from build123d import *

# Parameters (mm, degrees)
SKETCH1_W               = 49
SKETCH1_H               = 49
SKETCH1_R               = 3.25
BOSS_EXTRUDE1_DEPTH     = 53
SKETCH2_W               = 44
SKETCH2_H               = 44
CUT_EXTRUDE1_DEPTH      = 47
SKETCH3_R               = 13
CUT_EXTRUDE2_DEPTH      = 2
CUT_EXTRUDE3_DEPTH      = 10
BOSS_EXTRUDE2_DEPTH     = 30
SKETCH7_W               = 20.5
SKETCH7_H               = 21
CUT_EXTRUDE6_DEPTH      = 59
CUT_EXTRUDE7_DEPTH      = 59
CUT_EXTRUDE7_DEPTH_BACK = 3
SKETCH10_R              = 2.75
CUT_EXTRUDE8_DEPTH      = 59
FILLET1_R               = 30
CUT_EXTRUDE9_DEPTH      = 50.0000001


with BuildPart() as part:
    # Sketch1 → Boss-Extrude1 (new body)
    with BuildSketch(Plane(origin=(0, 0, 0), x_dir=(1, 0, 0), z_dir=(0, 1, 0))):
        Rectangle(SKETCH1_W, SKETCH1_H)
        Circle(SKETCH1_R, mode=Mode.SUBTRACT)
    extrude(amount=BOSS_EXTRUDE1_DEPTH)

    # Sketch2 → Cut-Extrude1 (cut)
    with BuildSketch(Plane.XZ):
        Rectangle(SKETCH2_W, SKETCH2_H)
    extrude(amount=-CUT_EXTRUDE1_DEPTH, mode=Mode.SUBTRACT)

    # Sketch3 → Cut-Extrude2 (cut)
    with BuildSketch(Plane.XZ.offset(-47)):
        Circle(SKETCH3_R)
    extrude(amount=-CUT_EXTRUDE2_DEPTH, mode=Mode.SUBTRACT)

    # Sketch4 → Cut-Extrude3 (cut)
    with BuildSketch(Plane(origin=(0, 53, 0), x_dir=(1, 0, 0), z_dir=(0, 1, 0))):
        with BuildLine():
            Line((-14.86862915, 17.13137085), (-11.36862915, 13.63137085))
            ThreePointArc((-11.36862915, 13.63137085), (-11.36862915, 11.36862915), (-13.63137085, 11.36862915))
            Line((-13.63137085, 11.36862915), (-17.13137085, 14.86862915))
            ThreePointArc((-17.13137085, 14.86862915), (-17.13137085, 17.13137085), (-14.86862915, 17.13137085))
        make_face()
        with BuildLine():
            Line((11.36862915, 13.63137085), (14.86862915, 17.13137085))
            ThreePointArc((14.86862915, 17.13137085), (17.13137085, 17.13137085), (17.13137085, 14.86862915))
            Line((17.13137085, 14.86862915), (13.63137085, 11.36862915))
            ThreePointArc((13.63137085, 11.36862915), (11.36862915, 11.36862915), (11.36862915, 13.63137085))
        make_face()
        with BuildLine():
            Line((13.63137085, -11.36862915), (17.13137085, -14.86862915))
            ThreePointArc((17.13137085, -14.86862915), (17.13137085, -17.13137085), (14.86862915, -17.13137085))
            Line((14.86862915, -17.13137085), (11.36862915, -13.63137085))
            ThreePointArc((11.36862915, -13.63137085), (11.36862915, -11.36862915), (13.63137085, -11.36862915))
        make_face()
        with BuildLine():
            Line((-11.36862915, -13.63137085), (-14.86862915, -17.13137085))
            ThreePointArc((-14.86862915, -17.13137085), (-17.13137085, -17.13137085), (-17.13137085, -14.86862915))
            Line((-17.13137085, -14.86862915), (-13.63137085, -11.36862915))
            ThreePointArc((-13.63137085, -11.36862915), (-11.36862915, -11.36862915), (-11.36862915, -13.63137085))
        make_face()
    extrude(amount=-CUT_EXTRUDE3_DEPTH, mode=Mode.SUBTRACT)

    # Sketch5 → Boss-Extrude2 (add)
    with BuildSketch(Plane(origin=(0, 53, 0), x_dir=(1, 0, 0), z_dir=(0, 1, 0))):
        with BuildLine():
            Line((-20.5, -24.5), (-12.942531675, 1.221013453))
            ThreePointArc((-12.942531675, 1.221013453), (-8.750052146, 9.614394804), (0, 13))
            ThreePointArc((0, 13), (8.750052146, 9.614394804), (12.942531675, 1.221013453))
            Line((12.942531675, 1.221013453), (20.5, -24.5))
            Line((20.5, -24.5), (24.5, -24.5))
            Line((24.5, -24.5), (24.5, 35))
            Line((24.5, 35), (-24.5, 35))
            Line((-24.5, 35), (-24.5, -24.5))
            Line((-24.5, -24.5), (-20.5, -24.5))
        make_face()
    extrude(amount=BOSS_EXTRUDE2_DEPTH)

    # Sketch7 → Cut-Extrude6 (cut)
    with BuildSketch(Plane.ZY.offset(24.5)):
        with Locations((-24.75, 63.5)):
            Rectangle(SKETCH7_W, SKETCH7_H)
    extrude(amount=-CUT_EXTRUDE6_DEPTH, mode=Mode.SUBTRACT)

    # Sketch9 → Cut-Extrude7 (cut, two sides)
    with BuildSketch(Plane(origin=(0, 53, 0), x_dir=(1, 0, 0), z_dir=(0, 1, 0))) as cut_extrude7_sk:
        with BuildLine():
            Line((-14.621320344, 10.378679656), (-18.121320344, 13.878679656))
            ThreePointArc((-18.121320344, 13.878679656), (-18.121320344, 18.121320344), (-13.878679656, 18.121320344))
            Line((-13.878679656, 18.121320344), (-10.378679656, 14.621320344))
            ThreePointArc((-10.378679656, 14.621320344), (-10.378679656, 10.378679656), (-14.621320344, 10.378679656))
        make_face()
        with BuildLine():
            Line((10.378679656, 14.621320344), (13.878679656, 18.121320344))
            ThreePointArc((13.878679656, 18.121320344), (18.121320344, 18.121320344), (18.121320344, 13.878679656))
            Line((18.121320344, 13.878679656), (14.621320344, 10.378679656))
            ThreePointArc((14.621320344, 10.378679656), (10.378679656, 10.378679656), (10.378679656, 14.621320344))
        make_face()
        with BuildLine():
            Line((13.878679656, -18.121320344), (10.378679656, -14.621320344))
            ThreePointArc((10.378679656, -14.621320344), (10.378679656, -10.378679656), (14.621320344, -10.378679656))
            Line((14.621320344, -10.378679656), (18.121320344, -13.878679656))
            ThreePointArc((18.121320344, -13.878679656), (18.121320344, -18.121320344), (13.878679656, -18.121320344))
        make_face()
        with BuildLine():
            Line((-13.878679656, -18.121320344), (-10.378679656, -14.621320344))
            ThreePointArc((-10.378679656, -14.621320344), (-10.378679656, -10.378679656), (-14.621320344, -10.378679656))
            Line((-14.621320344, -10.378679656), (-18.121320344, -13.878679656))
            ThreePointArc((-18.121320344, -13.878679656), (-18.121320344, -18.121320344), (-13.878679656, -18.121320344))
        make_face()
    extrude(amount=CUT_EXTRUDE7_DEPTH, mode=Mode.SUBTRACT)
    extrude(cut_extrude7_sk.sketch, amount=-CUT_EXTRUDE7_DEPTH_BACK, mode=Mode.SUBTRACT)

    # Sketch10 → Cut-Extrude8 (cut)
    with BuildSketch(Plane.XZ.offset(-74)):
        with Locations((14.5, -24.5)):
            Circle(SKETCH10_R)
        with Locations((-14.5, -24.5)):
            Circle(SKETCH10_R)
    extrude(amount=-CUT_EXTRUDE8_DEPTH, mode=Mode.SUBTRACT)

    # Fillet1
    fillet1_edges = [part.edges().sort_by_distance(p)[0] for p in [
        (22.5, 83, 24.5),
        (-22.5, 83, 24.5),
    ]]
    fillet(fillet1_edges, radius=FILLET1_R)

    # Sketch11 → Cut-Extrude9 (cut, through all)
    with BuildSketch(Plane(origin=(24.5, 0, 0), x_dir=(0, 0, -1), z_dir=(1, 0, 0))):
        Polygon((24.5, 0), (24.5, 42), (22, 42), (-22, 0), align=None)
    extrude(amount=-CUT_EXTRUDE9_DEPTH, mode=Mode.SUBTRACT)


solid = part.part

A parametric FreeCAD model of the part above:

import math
import FreeCAD as App
import Part
import Sketcher
Q = App.Units.Quantity


def edges_at(feature, points):
    """Names of the edges that pass closest to the given points."""
    edges = feature.Shape.Edges
    near = lambda p: min(range(len(edges)), key=lambda i: edges[i].distToShape(Part.Vertex(*p))[0])
    return sorted({f"Edge{near(p) + 1}" for p in points})


def add_polygon(sketch, points):
    """Adds a closed chain of lines whose ends are joined by coincident constraints."""
    first, n = sketch.GeometryCount, len(points)
    for a, b in zip(points, points[1:] + points[:1]):
        sketch.addGeometry(Part.LineSegment(App.Vector(*a, 0), App.Vector(*b, 0)), False)
    for i in range(n):
        sketch.addConstraint(Sketcher.Constraint("Coincident", first + i, 2, first + (i + 1) % n, 1))

doc = App.newDocument("Part")
body = doc.addObject("PartDesign::Body", "Body")

# Sketch on XZ plane
sketch1 = body.newObject("Sketcher::SketchObject", "Sketch")
sketch1.AttachmentSupport = (doc.getObject("XZ_Plane"), [""])
sketch1.MapMode = "FlatFace"
add_polygon(sketch1, [(-24.5, -24.5), (-24.5, 24.5), (24.5, 24.5), (24.5, -24.5)])  # lines 0-3
sketch1.addGeometry(Part.Circle(App.Vector(0, 0, 0), App.Vector(0, 0, 1), 3.25), False)  # 4
sketch1.addConstraint([
    Sketcher.Constraint("Vertical", 0),
    Sketcher.Constraint("Horizontal", 1),
    Sketcher.Constraint("Vertical", 2),
    Sketcher.Constraint("Horizontal", 3),
    Sketcher.Constraint("Coincident", 4, 3, -1, 1),
    Sketcher.Constraint("Symmetric", 0, 2, 2, 2, -1, 1),
    Sketcher.Constraint("Equal", 3, 0),
    Sketcher.Constraint("Diameter", 4, Q("6.5 mm")),
    Sketcher.Constraint("DistanceX", 1, 1, 1, 2, Q("49 mm")),
])
pad1 = body.newObject("PartDesign::Pad", "Pad")
pad1.Profile = sketch1
pad1.Length = 53
pad1.Reversed = True

# Sketch on XZ plane
sketch2 = body.newObject("Sketcher::SketchObject", "Sketch001")
sketch2.AttachmentSupport = (doc.getObject("XZ_Plane"), [""])
sketch2.MapMode = "FlatFace"
add_polygon(sketch2, [(-22, 22), (-22, -22), (22, -22), (22, 22)])  # lines 0-3
sketch2.addConstraint([
    Sketcher.Constraint("Vertical", 0),
    Sketcher.Constraint("Horizontal", 1),
    Sketcher.Constraint("Vertical", 2),
    Sketcher.Constraint("Horizontal", 3),
    Sketcher.Constraint("Symmetric", 0, 2, 2, 2, -1, 1),
    Sketcher.Constraint("Equal", 3, 0),
    Sketcher.Constraint("DistanceX", 1, 1, 1, 2, Q("44 mm")),
])
pocket1 = body.newObject("PartDesign::Pocket", "Pocket")
pocket1.Profile = sketch2
pocket1.Length = 47

# Sketch on XZ plane
sketch3 = body.newObject("Sketcher::SketchObject", "Sketch002")
sketch3.AttachmentSupport = (doc.getObject("XZ_Plane"), [""])
sketch3.MapMode = "FlatFace"
sketch3.AttachmentOffset = App.Placement(App.Vector(0, 0, -47), App.Rotation())
sketch3.addGeometry(Part.Circle(App.Vector(0, 0, 0), App.Vector(0, 0, 1), 13), False)
sketch3.addConstraint([
    Sketcher.Constraint("Coincident", 0, 3, -1, 1),
    Sketcher.Constraint("Diameter", 0, Q("26 mm")),
])
pocket2 = body.newObject("PartDesign::Pocket", "Pocket001")
pocket2.Profile = sketch3
pocket2.Length = 2

# Sketch on XZ plane
sketch4 = body.newObject("Sketcher::SketchObject", "Sketch003")
sketch4.AttachmentSupport = (doc.getObject("XZ_Plane"), [""])
sketch4.MapMode = "FlatFace"
sketch4.AttachmentOffset = App.Placement(App.Vector(0, 0, -53), App.Rotation())
sketch4.addGeometry([
    Part.LineSegment(App.Vector(-11.368629, -13.631371, 0), App.Vector(-14.868629, -17.131371, 0)),  # 0
    Part.ArcOfCircle(Part.Circle(App.Vector(-16, -16, 0), App.Vector(0, 0, 1), 1.6), math.radians(135), math.radians(315)),  # 1
    Part.LineSegment(App.Vector(-17.131371, -14.868629, 0), App.Vector(-13.631371, -11.368629, 0)),  # 2
    Part.ArcOfCircle(Part.Circle(App.Vector(-12.5, -12.5, 0), App.Vector(0, 0, 1), 1.6), math.radians(-45), math.radians(135)),  # 3
    Part.LineSegment(App.Vector(14.868629, -17.131371, 0), App.Vector(11.368629, -13.631371, 0)),  # 4
    Part.ArcOfCircle(Part.Circle(App.Vector(12.5, -12.5, 0), App.Vector(0, 0, 1), 1.6), math.radians(45), math.radians(225)),  # 5
    Part.LineSegment(App.Vector(13.631371, -11.368629, 0), App.Vector(17.131371, -14.868629, 0)),  # 6
    Part.ArcOfCircle(Part.Circle(App.Vector(16, -16, 0), App.Vector(0, 0, 1), 1.6), math.radians(-135), math.radians(45)),  # 7
    Part.LineSegment(App.Vector(17.131371, 14.868629, 0), App.Vector(13.631371, 11.368629, 0)),  # 8
    Part.ArcOfCircle(Part.Circle(App.Vector(12.5, 12.5, 0), App.Vector(0, 0, 1), 1.6), math.radians(135), math.radians(315)),  # 9
    Part.LineSegment(App.Vector(11.368629, 13.631371, 0), App.Vector(14.868629, 17.131371, 0)),  # 10
    Part.ArcOfCircle(Part.Circle(App.Vector(16, 16, 0), App.Vector(0, 0, 1), 1.6), math.radians(-45), math.radians(135)),  # 11
    Part.LineSegment(App.Vector(-14.868629, 17.131371, 0), App.Vector(-11.368629, 13.631371, 0)),  # 12
    Part.ArcOfCircle(Part.Circle(App.Vector(-12.5, 12.5, 0), App.Vector(0, 0, 1), 1.6), math.radians(-135), math.radians(45)),  # 13
    Part.LineSegment(App.Vector(-13.631371, 11.368629, 0), App.Vector(-17.131371, 14.868629, 0)),  # 14
    Part.ArcOfCircle(Part.Circle(App.Vector(-16, 16, 0), App.Vector(0, 0, 1), 1.6), math.radians(45), math.radians(225)),  # 15
], False)
sketch4.addConstraint([
    Sketcher.Constraint("Tangent", 0, 2, 1, 2),
    Sketcher.Constraint("Tangent", 1, 1, 2, 1),
    Sketcher.Constraint("Tangent", 2, 2, 3, 2),
    Sketcher.Constraint("Tangent", 3, 1, 0, 1),
    Sketcher.Constraint("Tangent", 4, 2, 5, 2),
    Sketcher.Constraint("Tangent", 5, 1, 6, 1),
    Sketcher.Constraint("Tangent", 6, 2, 7, 2),
    Sketcher.Constraint("Tangent", 7, 1, 4, 1),
    Sketcher.Constraint("Tangent", 8, 2, 9, 2),
    Sketcher.Constraint("Tangent", 9, 1, 10, 1),
    Sketcher.Constraint("Tangent", 10, 2, 11, 2),
    Sketcher.Constraint("Tangent", 11, 1, 8, 1),
    Sketcher.Constraint("Tangent", 12, 2, 13, 2),
    Sketcher.Constraint("Tangent", 13, 1, 14, 1),
    Sketcher.Constraint("Tangent", 14, 2, 15, 2),
    Sketcher.Constraint("Tangent", 15, 1, 12, 1),
    Sketcher.Constraint("Equal", 1, 3),
    Sketcher.Constraint("Equal", 3, 5),
    Sketcher.Constraint("Equal", 5, 7),
    Sketcher.Constraint("Equal", 7, 9),
    Sketcher.Constraint("Equal", 9, 11),
    Sketcher.Constraint("Equal", 11, 13),
    Sketcher.Constraint("Equal", 13, 15),
    Sketcher.Constraint("Symmetric", 3, 3, 9, 3, -1, 1),
    Sketcher.Constraint("Symmetric", 1, 3, 11, 3, -1, 1),
    Sketcher.Constraint("Symmetric", 5, 3, 13, 3, -1, 1),
    Sketcher.Constraint("Symmetric", 7, 3, 15, 3, -1, 1),
    Sketcher.Constraint("Symmetric", 3, 3, 5, 3, -2),
    Sketcher.Constraint("Symmetric", 1, 3, 7, 3, -2),
    Sketcher.Constraint("Perpendicular", 2, 4),
    Sketcher.Constraint("Radius", 1, Q("1.6 mm")),
    Sketcher.Constraint("DistanceX", 1, 3, -1, 1, Q("16 mm")),
    Sketcher.Constraint("DistanceY", 1, 3, -1, 1, Q("16 mm")),
    Sketcher.Constraint("DistanceX", 3, 3, 5, 3, Q("25 mm")),
])
pocket3 = body.newObject("PartDesign::Pocket", "Pocket002")
pocket3.Profile = sketch4
pocket3.Length = 10
pocket3.Reversed = True

# Sketch on XZ plane
sketch5 = body.newObject("Sketcher::SketchObject", "Sketch004")
sketch5.AttachmentSupport = (doc.getObject("XZ_Plane"), [""])
sketch5.MapMode = "FlatFace"
sketch5.AttachmentOffset = App.Placement(App.Vector(0, 0, -53), App.Rotation())
sketch5.addGeometry([
    Part.LineSegment(App.Vector(-20.5, 24.5, 0), App.Vector(-12.942532, -1.221013, 0)),  # 0
    Part.ArcOfCircle(Part.Circle(App.Vector(0, 0, 0), App.Vector(0, 0, 1), 13), math.radians(-174.610601), math.radians(-90)),  # 1
    Part.ArcOfCircle(Part.Circle(App.Vector(0, 0, 0), App.Vector(0, 0, 1), 13), math.radians(-90), math.radians(-5.389399)),  # 2
    Part.LineSegment(App.Vector(12.942532, -1.221013, 0), App.Vector(20.5, 24.5, 0)),  # 3
    Part.LineSegment(App.Vector(20.5, 24.5, 0), App.Vector(24.5, 24.5, 0)),  # 4
    Part.LineSegment(App.Vector(24.5, 24.5, 0), App.Vector(24.5, -35, 0)),  # 5
    Part.LineSegment(App.Vector(24.5, -35, 0), App.Vector(-24.5, -35, 0)),  # 6
    Part.LineSegment(App.Vector(-24.5, -35, 0), App.Vector(-24.5, 24.5, 0)),  # 7
    Part.LineSegment(App.Vector(-24.5, 24.5, 0), App.Vector(-20.5, 24.5, 0)),  # 8
], False)
sketch5.addConstraint([
    Sketcher.Constraint("Coincident", 0, 2, 1, 1),
    Sketcher.Constraint("Tangent", 1, 2, 2, 1),
    Sketcher.Constraint("Coincident", 2, 2, 3, 1),
    Sketcher.Constraint("Coincident", 3, 2, 4, 1),
    Sketcher.Constraint("Coincident", 4, 2, 5, 1),
    Sketcher.Constraint("Coincident", 5, 2, 6, 1),
    Sketcher.Constraint("Coincident", 6, 2, 7, 1),
    Sketcher.Constraint("Coincident", 7, 2, 8, 1),
    Sketcher.Constraint("Coincident", 8, 2, 0, 1),
    Sketcher.Constraint("Horizontal", 4),
    Sketcher.Constraint("Vertical", 5),
    Sketcher.Constraint("Horizontal", 6),
    Sketcher.Constraint("Vertical", 7),
    Sketcher.Constraint("Horizontal", 8),
    Sketcher.Constraint("Coincident", 1, 3, -1, 1),
    Sketcher.Constraint("Equal", 1, 2),
    Sketcher.Constraint("Symmetric", 4, 2, 7, 2, -2),
    Sketcher.Constraint("PointOnObject", 1, 2, -2),
    Sketcher.Constraint("Horizontal", 0, 2, 2, 2),
    Sketcher.Constraint("Equal", 4, 8),
    Sketcher.Constraint("Radius", 1, Q("13 mm")),
    Sketcher.Constraint("DistanceX", 4, 1, 4, 2, Q("4 mm")),
    Sketcher.Constraint("DistanceX", 6, 2, 6, 1, Q("49 mm")),
    Sketcher.Constraint("DistanceY", 5, 2, 5, 1, Q("59.5 mm")),
    Sketcher.Constraint("DistanceY", 5, 2, -1, 1, Q("35 mm")),
    Sketcher.Constraint("DistanceX", 0, 2, -1, 1, Q("12.942532 mm")),
])
pad2 = body.newObject("PartDesign::Pad", "Pad001")
pad2.Profile = sketch5
pad2.Length = 30
pad2.Reversed = True

# Sketch on YZ plane
sketch6 = body.newObject("Sketcher::SketchObject", "Sketch005")
sketch6.AttachmentSupport = (doc.getObject("YZ_Plane"), [""])
sketch6.MapMode = "FlatFace"
sketch6.AttachmentOffset = App.Placement(App.Vector(0, 0, -24.5), App.Rotation())
add_polygon(sketch6, [(74, -35), (53, -35), (53, -14.5), (74, -14.5)])  # lines 0-3
sketch6.addConstraint([
    Sketcher.Constraint("Horizontal", 0),
    Sketcher.Constraint("Vertical", 1),
    Sketcher.Constraint("Horizontal", 2),
    Sketcher.Constraint("Vertical", 3),
    Sketcher.Constraint("DistanceX", 0, 2, 0, 1, Q("21 mm")),
    Sketcher.Constraint("DistanceY", 1, 1, 1, 2, Q("20.5 mm")),
    Sketcher.Constraint("DistanceX", -1, 1, 0, 2, Q("53 mm")),
    Sketcher.Constraint("DistanceY", 0, 2, -1, 1, Q("35 mm")),
])
pocket4 = body.newObject("PartDesign::Pocket", "Pocket003")
pocket4.Profile = sketch6
pocket4.Length = 59
pocket4.Reversed = True

# Sketch on XZ plane
sketch7 = body.newObject("Sketcher::SketchObject", "Sketch006")
sketch7.AttachmentSupport = (doc.getObject("XZ_Plane"), [""])
sketch7.MapMode = "FlatFace"
sketch7.AttachmentOffset = App.Placement(App.Vector(0, 0, -53), App.Rotation())
sketch7.addGeometry([
    Part.LineSegment(App.Vector(-18.12132, -13.87868, 0), App.Vector(-14.62132, -10.37868, 0)),  # 0
    Part.ArcOfCircle(Part.Circle(App.Vector(-12.5, -12.5, 0), App.Vector(0, 0, 1), 3), math.radians(-45), math.radians(135)),  # 1
    Part.LineSegment(App.Vector(-10.37868, -14.62132, 0), App.Vector(-13.87868, -18.12132, 0)),  # 2
    Part.ArcOfCircle(Part.Circle(App.Vector(-16, -16, 0), App.Vector(0, 0, 1), 3), math.radians(135), math.radians(315)),  # 3
    Part.LineSegment(App.Vector(13.87868, -18.12132, 0), App.Vector(10.37868, -14.62132, 0)),  # 4
    Part.ArcOfCircle(Part.Circle(App.Vector(12.5, -12.5, 0), App.Vector(0, 0, 1), 3), math.radians(45), math.radians(225)),  # 5
    Part.LineSegment(App.Vector(14.62132, -10.37868, 0), App.Vector(18.12132, -13.87868, 0)),  # 6
    Part.ArcOfCircle(Part.Circle(App.Vector(16, -16, 0), App.Vector(0, 0, 1), 3), math.radians(-135), math.radians(45)),  # 7
    Part.LineSegment(App.Vector(10.37868, 14.62132, 0), App.Vector(13.87868, 18.12132, 0)),  # 8
    Part.ArcOfCircle(Part.Circle(App.Vector(16, 16, 0), App.Vector(0, 0, 1), 3), math.radians(-45), math.radians(135)),  # 9
    Part.LineSegment(App.Vector(18.12132, 13.87868, 0), App.Vector(14.62132, 10.37868, 0)),  # 10
    Part.ArcOfCircle(Part.Circle(App.Vector(12.5, 12.5, 0), App.Vector(0, 0, 1), 3), math.radians(135), math.radians(315)),  # 11
    Part.LineSegment(App.Vector(-13.87868, 18.12132, 0), App.Vector(-10.37868, 14.62132, 0)),  # 12
    Part.ArcOfCircle(Part.Circle(App.Vector(-12.5, 12.5, 0), App.Vector(0, 0, 1), 3), math.radians(-135), math.radians(45)),  # 13
    Part.LineSegment(App.Vector(-14.62132, 10.37868, 0), App.Vector(-18.12132, 13.87868, 0)),  # 14
    Part.ArcOfCircle(Part.Circle(App.Vector(-16, 16, 0), App.Vector(0, 0, 1), 3), math.radians(45), math.radians(225)),  # 15
], False)
sketch7.addConstraint([
    Sketcher.Constraint("Tangent", 0, 2, 1, 2),
    Sketcher.Constraint("Tangent", 1, 1, 2, 1),
    Sketcher.Constraint("Tangent", 2, 2, 3, 2),
    Sketcher.Constraint("Tangent", 3, 1, 0, 1),
    Sketcher.Constraint("Tangent", 4, 2, 5, 2),
    Sketcher.Constraint("Tangent", 5, 1, 6, 1),
    Sketcher.Constraint("Tangent", 6, 2, 7, 2),
    Sketcher.Constraint("Tangent", 7, 1, 4, 1),
    Sketcher.Constraint("Tangent", 8, 2, 9, 2),
    Sketcher.Constraint("Tangent", 9, 1, 10, 1),
    Sketcher.Constraint("Tangent", 10, 2, 11, 2),
    Sketcher.Constraint("Tangent", 11, 1, 8, 1),
    Sketcher.Constraint("Tangent", 12, 2, 13, 2),
    Sketcher.Constraint("Tangent", 13, 1, 14, 1),
    Sketcher.Constraint("Tangent", 14, 2, 15, 2),
    Sketcher.Constraint("Tangent", 15, 1, 12, 1),
    Sketcher.Constraint("Equal", 1, 3),
    Sketcher.Constraint("Equal", 3, 5),
    Sketcher.Constraint("Equal", 5, 7),
    Sketcher.Constraint("Equal", 7, 9),
    Sketcher.Constraint("Equal", 9, 11),
    Sketcher.Constraint("Equal", 11, 13),
    Sketcher.Constraint("Equal", 13, 15),
    Sketcher.Constraint("Symmetric", 3, 3, 9, 3, -1, 1),
    Sketcher.Constraint("Symmetric", 1, 3, 11, 3, -1, 1),
    Sketcher.Constraint("Symmetric", 5, 3, 13, 3, -1, 1),
    Sketcher.Constraint("Symmetric", 7, 3, 15, 3, -1, 1),
    Sketcher.Constraint("Symmetric", 1, 3, 5, 3, -2),
    Sketcher.Constraint("Symmetric", 3, 3, 7, 3, -2),
    Sketcher.Constraint("Perpendicular", 2, 4),
    Sketcher.Constraint("Radius", 1, Q("3 mm")),
    Sketcher.Constraint("DistanceX", 3, 3, -1, 1, Q("16 mm")),
    Sketcher.Constraint("DistanceY", 3, 3, -1, 1, Q("16 mm")),
    Sketcher.Constraint("DistanceX", 1, 3, 5, 3, Q("25 mm")),
])
pocket5 = body.newObject("PartDesign::Pocket", "Pocket004")
pocket5.Profile = sketch7
pocket5.Type = "TwoLengths"
pocket5.Length = 59
pocket5.Length2 = 3

# Sketch on XZ plane
sketch8 = body.newObject("Sketcher::SketchObject", "Sketch007")
sketch8.AttachmentSupport = (doc.getObject("XZ_Plane"), [""])
sketch8.MapMode = "FlatFace"
sketch8.AttachmentOffset = App.Placement(App.Vector(0, 0, -74), App.Rotation())
sketch8.addGeometry([
    Part.Circle(App.Vector(14.5, -24.5, 0), App.Vector(0, 0, 1), 2.75),
    Part.Circle(App.Vector(-14.5, -24.5, 0), App.Vector(0, 0, 1), 2.75),
], False)
sketch8.addConstraint([
    Sketcher.Constraint("Equal", 0, 1),
    Sketcher.Constraint("Symmetric", 0, 3, 1, 3, -2),
    Sketcher.Constraint("Diameter", 0, Q("5.5 mm")),
    Sketcher.Constraint("DistanceX", 1, 3, 0, 3, Q("29 mm")),
    Sketcher.Constraint("DistanceY", 0, 3, -1, 1, Q("24.5 mm")),
])
pocket6 = body.newObject("PartDesign::Pocket", "Pocket005")
pocket6.Profile = sketch8
pocket6.Length = 59
doc.recompute()

fillet = body.newObject("PartDesign::Fillet", "Fillet")
fillet.Base = (pocket6, edges_at(pocket6, [(22.5, 83, 24.5), (-22.5, 83, 24.5)]))
fillet.Radius = 30

# Sketch on YZ plane
sketch9 = body.newObject("Sketcher::SketchObject", "Sketch008")
sketch9.AttachmentSupport = (doc.getObject("YZ_Plane"), [""])
sketch9.MapMode = "FlatFace"
sketch9.AttachmentOffset = App.Placement(App.Vector(0, 0, 24.5), App.Rotation())
add_polygon(sketch9, [(0, -24.5), (42, -24.5), (42, -22), (0, 22)])  # lines 0-3
sketch9.addConstraint([
    Sketcher.Constraint("Horizontal", 0),
    Sketcher.Constraint("Vertical", 1),
    Sketcher.Constraint("Vertical", 3),
    Sketcher.Constraint("PointOnObject", 2, 2, -2),
    Sketcher.Constraint("DistanceX", 0, 1, 0, 2, Q("42 mm")),
    Sketcher.Constraint("DistanceY", 1, 1, 1, 2, Q("2.5 mm")),
    Sketcher.Constraint("DistanceY", 3, 2, 3, 1, Q("46.5 mm")),
    Sketcher.Constraint("DistanceY", 1, 2, -1, 1, Q("22 mm")),
])
pocket7 = body.newObject("PartDesign::Pocket", "Pocket006")
pocket7.Profile = sketch9
pocket7.Type = "ThroughAll"

doc.recompute()
